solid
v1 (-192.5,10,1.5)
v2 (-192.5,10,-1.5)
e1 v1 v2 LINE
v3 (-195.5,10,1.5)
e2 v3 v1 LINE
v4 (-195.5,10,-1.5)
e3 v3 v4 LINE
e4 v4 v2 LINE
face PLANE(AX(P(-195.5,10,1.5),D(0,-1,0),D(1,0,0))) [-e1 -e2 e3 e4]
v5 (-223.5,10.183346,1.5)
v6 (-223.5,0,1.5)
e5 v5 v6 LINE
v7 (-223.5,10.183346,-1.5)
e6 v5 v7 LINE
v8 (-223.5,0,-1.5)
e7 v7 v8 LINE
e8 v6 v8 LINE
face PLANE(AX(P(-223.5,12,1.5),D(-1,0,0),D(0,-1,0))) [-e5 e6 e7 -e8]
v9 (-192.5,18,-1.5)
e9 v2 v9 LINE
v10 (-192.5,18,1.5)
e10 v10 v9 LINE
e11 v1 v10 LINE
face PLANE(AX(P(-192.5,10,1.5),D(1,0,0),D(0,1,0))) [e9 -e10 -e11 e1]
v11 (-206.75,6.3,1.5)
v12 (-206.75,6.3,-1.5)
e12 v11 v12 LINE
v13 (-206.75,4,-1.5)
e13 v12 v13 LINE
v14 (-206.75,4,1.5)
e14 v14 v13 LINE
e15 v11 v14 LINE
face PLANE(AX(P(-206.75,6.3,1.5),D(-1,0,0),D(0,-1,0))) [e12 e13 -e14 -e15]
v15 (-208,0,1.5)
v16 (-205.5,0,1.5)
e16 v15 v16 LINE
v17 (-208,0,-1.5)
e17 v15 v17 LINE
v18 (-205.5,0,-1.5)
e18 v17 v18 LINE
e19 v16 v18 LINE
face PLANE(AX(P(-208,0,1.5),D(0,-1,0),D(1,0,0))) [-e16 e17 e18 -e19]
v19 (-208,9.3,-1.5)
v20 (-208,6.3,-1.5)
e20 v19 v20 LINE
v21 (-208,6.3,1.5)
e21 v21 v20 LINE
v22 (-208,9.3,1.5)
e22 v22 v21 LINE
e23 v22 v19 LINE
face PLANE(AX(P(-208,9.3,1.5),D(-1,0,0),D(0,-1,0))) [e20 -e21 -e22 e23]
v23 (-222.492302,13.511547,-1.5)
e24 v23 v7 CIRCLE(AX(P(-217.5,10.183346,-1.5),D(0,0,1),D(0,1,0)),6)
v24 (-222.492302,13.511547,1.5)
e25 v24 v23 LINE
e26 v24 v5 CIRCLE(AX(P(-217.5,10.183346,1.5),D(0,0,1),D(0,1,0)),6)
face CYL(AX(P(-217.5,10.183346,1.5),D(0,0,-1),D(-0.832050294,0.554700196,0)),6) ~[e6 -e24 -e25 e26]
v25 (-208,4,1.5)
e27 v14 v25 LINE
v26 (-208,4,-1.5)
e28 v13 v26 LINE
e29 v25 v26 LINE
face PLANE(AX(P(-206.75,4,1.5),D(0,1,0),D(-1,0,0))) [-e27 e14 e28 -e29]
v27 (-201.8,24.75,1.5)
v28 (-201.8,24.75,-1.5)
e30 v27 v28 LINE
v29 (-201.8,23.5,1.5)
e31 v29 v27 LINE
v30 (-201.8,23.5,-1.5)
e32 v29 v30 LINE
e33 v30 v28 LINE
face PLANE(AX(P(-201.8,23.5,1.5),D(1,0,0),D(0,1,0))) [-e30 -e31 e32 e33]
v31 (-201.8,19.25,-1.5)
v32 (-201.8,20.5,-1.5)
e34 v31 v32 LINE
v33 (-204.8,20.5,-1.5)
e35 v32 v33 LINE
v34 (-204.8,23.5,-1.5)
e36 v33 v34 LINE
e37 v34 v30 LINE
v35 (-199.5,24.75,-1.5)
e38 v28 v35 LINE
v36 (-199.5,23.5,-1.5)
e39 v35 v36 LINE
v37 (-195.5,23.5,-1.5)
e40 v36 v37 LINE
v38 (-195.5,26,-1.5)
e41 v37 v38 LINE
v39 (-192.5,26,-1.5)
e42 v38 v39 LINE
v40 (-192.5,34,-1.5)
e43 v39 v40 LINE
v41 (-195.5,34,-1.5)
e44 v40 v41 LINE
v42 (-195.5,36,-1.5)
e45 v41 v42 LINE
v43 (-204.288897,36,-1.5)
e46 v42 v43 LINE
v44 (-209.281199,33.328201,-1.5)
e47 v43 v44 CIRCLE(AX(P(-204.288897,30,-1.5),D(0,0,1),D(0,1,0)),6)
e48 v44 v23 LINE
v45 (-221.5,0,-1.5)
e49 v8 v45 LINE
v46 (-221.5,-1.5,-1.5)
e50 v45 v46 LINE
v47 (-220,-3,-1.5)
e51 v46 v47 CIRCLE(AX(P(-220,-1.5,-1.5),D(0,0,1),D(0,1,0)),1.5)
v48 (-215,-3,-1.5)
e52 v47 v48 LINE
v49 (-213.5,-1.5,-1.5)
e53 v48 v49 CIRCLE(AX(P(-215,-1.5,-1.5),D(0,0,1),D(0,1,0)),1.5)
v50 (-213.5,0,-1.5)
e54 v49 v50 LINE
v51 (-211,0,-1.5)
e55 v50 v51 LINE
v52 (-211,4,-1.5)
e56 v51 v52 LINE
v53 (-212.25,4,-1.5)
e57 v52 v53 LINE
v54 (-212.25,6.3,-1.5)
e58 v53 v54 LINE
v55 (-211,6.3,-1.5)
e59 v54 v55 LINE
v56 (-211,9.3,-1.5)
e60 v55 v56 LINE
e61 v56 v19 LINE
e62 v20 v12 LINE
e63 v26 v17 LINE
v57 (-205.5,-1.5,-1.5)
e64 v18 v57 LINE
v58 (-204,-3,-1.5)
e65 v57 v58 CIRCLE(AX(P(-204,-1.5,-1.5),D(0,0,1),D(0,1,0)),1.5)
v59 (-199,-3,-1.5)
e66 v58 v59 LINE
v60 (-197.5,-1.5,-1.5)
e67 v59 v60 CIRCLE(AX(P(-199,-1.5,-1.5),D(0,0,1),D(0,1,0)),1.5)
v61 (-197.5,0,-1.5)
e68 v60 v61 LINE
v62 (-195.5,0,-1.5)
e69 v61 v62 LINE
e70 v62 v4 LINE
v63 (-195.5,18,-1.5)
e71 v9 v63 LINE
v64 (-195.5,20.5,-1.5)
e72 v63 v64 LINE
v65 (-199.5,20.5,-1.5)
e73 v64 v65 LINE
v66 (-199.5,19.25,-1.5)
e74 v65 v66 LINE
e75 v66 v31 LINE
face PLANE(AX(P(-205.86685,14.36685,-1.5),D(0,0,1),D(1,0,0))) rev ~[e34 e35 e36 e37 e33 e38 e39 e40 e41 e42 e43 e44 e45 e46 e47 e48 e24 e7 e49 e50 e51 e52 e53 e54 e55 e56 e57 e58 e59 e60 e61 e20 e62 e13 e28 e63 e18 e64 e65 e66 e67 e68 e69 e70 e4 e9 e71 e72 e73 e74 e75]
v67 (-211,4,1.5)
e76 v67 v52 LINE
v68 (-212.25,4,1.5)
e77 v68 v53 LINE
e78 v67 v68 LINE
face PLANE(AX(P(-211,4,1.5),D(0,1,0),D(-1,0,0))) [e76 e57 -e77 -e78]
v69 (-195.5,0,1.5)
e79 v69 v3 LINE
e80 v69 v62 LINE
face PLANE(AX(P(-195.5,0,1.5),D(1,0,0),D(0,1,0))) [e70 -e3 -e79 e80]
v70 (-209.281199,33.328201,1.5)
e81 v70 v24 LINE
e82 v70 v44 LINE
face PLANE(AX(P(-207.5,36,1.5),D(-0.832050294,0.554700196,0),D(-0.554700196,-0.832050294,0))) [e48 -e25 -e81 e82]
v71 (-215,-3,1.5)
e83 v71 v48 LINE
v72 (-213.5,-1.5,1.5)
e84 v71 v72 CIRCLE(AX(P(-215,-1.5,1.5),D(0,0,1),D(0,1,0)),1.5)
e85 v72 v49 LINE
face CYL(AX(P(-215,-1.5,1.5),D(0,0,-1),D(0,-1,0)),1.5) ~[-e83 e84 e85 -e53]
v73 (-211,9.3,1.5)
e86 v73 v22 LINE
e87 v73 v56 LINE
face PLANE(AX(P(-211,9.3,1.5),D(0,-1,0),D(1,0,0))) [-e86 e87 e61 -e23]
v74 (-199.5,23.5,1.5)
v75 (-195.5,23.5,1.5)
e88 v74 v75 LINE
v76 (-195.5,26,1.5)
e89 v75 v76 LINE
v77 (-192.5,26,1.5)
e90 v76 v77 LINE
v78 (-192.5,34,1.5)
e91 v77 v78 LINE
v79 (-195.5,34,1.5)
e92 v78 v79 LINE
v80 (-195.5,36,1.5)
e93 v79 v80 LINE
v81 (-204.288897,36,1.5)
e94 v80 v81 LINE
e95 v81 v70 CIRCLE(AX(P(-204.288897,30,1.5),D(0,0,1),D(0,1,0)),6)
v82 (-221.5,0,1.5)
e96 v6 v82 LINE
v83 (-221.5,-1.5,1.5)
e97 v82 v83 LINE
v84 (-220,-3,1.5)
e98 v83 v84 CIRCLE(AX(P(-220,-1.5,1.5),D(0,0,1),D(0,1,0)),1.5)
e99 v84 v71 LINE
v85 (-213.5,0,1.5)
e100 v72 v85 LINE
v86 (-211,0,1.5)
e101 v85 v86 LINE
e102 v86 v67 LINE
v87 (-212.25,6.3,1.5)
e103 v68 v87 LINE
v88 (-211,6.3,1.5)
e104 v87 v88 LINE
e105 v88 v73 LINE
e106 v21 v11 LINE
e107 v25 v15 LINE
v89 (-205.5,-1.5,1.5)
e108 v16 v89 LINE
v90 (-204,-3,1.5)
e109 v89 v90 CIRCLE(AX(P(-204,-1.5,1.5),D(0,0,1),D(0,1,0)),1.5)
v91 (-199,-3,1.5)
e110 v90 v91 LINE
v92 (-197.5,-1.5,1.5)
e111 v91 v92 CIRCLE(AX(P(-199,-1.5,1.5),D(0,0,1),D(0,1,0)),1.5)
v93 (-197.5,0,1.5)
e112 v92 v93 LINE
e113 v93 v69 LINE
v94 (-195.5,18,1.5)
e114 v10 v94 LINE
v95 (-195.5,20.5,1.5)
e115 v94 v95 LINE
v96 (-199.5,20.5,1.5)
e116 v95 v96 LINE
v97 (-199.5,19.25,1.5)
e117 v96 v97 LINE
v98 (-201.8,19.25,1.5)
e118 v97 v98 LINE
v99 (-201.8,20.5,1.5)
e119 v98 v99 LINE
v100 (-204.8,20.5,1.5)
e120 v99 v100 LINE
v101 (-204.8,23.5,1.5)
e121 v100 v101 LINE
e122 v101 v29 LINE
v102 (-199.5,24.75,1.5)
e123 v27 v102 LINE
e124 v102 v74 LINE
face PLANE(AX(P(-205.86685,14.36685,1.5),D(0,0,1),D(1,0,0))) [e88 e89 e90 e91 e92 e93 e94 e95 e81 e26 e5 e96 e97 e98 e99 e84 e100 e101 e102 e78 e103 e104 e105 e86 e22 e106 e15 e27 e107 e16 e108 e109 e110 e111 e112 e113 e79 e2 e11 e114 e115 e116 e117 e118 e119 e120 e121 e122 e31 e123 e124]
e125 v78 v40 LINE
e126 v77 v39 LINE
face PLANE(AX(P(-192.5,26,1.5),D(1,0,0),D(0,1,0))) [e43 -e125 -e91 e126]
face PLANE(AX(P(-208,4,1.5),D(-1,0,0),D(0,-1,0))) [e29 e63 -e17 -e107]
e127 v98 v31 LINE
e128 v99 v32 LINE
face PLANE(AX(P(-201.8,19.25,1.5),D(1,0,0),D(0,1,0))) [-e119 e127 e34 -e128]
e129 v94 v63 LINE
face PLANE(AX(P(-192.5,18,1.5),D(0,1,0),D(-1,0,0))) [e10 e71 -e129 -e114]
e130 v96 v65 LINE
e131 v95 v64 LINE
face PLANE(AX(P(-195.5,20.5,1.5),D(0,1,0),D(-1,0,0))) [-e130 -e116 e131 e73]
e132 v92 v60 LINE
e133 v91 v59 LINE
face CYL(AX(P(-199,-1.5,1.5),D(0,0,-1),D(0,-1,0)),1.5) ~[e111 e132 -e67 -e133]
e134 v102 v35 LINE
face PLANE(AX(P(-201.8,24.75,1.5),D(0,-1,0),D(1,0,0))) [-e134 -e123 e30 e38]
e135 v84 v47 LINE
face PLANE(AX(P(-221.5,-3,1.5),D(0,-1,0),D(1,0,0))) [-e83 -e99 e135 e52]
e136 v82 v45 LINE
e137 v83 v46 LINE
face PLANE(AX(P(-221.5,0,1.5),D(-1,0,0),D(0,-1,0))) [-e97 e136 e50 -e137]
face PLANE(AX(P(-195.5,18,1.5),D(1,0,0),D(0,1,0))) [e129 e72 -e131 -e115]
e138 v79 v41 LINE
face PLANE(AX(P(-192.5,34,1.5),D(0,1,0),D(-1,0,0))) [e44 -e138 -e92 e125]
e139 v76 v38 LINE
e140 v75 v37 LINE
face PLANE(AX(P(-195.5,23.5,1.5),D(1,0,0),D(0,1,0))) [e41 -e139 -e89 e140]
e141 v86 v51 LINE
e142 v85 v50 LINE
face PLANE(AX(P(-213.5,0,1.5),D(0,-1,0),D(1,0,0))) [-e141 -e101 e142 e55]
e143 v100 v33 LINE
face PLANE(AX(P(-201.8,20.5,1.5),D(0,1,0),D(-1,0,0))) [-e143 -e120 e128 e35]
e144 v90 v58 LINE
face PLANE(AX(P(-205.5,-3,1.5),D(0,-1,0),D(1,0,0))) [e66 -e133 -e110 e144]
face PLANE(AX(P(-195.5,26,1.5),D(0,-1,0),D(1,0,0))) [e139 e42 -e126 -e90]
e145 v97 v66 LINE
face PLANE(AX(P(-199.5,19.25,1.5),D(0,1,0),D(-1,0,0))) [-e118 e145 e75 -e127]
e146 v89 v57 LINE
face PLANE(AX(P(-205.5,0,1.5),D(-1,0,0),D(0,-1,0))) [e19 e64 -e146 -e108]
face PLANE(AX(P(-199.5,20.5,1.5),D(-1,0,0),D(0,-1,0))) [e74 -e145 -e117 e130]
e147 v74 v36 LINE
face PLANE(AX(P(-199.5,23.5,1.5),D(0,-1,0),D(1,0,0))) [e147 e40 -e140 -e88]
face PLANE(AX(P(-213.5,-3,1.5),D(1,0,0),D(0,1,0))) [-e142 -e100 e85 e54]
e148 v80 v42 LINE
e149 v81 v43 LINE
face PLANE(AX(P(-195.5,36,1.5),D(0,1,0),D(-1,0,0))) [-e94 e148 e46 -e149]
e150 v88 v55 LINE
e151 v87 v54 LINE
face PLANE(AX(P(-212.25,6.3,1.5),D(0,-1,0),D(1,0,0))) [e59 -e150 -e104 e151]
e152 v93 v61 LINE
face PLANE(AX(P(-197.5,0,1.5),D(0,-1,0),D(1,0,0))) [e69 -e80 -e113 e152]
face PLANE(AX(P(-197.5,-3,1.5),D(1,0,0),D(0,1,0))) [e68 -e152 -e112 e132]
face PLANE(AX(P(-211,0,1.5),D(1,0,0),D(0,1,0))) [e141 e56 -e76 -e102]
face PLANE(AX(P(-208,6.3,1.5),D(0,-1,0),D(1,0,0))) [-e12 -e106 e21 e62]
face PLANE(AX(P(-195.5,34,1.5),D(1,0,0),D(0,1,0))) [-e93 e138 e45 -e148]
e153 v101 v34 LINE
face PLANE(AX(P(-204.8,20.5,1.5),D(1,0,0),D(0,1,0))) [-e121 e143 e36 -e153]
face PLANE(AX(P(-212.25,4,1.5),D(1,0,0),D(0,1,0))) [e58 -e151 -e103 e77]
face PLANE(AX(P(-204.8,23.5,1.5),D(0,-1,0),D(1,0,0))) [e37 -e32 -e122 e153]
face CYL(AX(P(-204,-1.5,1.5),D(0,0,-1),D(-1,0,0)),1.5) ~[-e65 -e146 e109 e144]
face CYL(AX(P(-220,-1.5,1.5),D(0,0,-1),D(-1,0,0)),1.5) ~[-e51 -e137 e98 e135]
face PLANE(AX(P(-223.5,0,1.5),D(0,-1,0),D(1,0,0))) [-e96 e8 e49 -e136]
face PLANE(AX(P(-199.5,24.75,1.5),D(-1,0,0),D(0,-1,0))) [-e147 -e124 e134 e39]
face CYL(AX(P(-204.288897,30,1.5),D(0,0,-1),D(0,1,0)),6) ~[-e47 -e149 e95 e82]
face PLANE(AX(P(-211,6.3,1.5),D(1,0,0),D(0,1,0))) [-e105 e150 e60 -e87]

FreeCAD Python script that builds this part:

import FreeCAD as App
import Part
import Sketcher

V = App.Vector


def edges_at(feature, points):
    """Names of the edges that pass closest to the given points."""
    edges = feature.Shape.Edges
    near = lambda p: min(range(len(edges)), key=lambda i: edges[i].distToShape(Part.Vertex(*p))[0])
    return sorted({f"Edge{near(p) + 1}" for p in points})


def add_polygon(sketch, points):
    """Adds a closed chain of lines whose ends are joined by coincident constraints."""
    first, n = sketch.GeometryCount, len(points)
    for a, b in zip(points, points[1:] + points[:1]):
        sketch.addGeometry(Part.LineSegment(App.Vector(*a, 0), App.Vector(*b, 0)), False)
    for i in range(n):
        sketch.addConstraint(Sketcher.Constraint("Coincident", first + i, 2, first + (i + 1) % n, 1))

doc = App.newDocument("Part")
params = doc.addObject("Spreadsheet::Sheet", "Params")
for row, (alias, value) in enumerate([
    ("sketch1_width", "12 mm"),
    ("sketch1_width2", "3 mm"),
    ("sketch1_width3", "4 mm"),
    ("sketch1_width4", "2 mm"),
    ("sketch1_width5", "8 mm"),
    ("pad1_length", "3 mm"),
    ("fillet_radius", "6 mm"),
    ("fillet2_radius", "1.5 mm"),
], start=1):
    params.set(f"A{row}", alias)
    params.set(f"B{row}", "=" + value)
    params.setAlias(f"B{row}", alias)

body = doc.addObject("PartDesign::Body", "Body")

# Sketch on XY plane
sketch1 = body.newObject("Sketcher::SketchObject", "Sketch")
sketch1.AttachmentSupport = (doc.getObject("XY_Plane"), [""])
sketch1.MapMode = "FlatFace"
sketch1.AttachmentOffset = App.Placement(V(0, 0, 1.5), App.Rotation())
add_polygon(sketch1, [(-207.5, 36), (-195.5, 36), (-195.5, 34), (-192.5, 34), (-192.5, 26), (-195.5, 26), (-195.5, 23.5), (-199.5, 23.5), (-199.5, 24.8), (-201.8, 24.8), (-201.8, 23.5), (-204.8, 23.5), (-204.8, 20.5), (-201.8, 20.5), (-201.8, 19.2), (-199.5, 19.2), (-199.5, 20.5), (-195.5, 20.5), (-195.5, 18), (-192.5, 18), (-192.5, 10), (-195.5, 10), (-195.5, 0), (-197.5, 0), (-197.5, -3), (-205.5, -3), (-205.5, 0), (-208, 0), (-208, 4), (-206.8, 4), (-206.8, 6.3), (-208, 6.3), (-208, 9.3), (-211, 9.3), (-211, 6.3), (-212.2, 6.3), (-212.2, 4), (-211, 4), (-211, 0), (-213.5, 0), (-213.5, -3), (-221.5, -3), (-221.5, 0), (-223.5, 0), (-223.5, 12)])  # lines 0-44
sketch1.addConstraint([
    Sketcher.Constraint("Horizontal", 0),
    Sketcher.Constraint("Vertical", 1),
    Sketcher.Constraint("Horizontal", 2),
    Sketcher.Constraint("Vertical", 3),
    Sketcher.Constraint("Horizontal", 4),
    Sketcher.Constraint("Vertical", 5),
    Sketcher.Constraint("Horizontal", 6),
    Sketcher.Constraint("Vertical", 7),
    Sketcher.Constraint("Horizontal", 8),
    Sketcher.Constraint("Vertical", 9),
    Sketcher.Constraint("Horizontal", 10),
    Sketcher.Constraint("Vertical", 11),
    Sketcher.Constraint("Horizontal", 12),
    Sketcher.Constraint("Vertical", 13),
    Sketcher.Constraint("Horizontal", 14),
    Sketcher.Constraint("Vertical", 15),
    Sketcher.Constraint("Horizontal", 16),
    Sketcher.Constraint("Vertical", 17),
    Sketcher.Constraint("Horizontal", 18),
    Sketcher.Constraint("Vertical", 19),
    Sketcher.Constraint("Horizontal", 20),
    Sketcher.Constraint("Vertical", 21),
    Sketcher.Constraint("Horizontal", 22),
    Sketcher.Constraint("Vertical", 23),
    Sketcher.Constraint("Horizontal", 24),
    Sketcher.Constraint("Vertical", 25),
    Sketcher.Constraint("Horizontal", 26),
    Sketcher.Constraint("Vertical", 27),
    Sketcher.Constraint("Horizontal", 28),
    Sketcher.Constraint("Vertical", 29),
    Sketcher.Constraint("Horizontal", 30),
    Sketcher.Constraint("Vertical", 31),
    Sketcher.Constraint("Horizontal", 32),
    Sketcher.Constraint("Vertical", 33),
    Sketcher.Constraint("Horizontal", 34),
    Sketcher.Constraint("Vertical", 35),
    Sketcher.Constraint("Horizontal", 36),
    Sketcher.Constraint("Vertical", 37),
    Sketcher.Constraint("Horizontal", 38),
    Sketcher.Constraint("Vertical", 39),
    Sketcher.Constraint("Horizontal", 40),
    Sketcher.Constraint("Vertical", 41),
    Sketcher.Constraint("Horizontal", 42),
    Sketcher.Constraint("Vertical", 43),
    Sketcher.Constraint("PointOnObject", 21, 2, -1),
    Sketcher.Constraint("PointOnObject", 25, 2, -1),
    Sketcher.Constraint("PointOnObject", 37, 2, -1),
    Sketcher.Constraint("PointOnObject", 41, 2, -1),
    Sketcher.Constraint("Horizontal", 6, 2, 9, 2),
    Sketcher.Constraint("Horizontal", 12, 2, 15, 2),
    Sketcher.Constraint("Horizontal", 30, 2, 33, 2),
    Sketcher.Constraint("Horizontal", 28, 2, 35, 2),
    Sketcher.Constraint("Horizontal", 24, 2, 39, 2),
    Sketcher.Constraint("Vertical", 1, 2, 4, 2),
    Sketcher.Constraint("Vertical", 9, 2, 12, 2),
    Sketcher.Constraint("Vertical", 7, 2, 14, 2),
    Sketcher.Constraint("Vertical", 5, 2, 16, 2),
    Sketcher.Constraint("Vertical", 3, 2, 18, 2),
    Sketcher.Constraint("Vertical", 17, 2, 20, 2),
    Sketcher.Constraint("Vertical", 27, 2, 30, 2),
    Sketcher.Constraint("Vertical", 33, 2, 36, 2),
    Sketcher.Constraint("Equal", 4, 10),
    Sketcher.Constraint("Equal", 20, 32),
    Sketcher.Constraint("Equal", 30, 34),
    Sketcher.Constraint("Equal", 26, 38),
    Sketcher.Constraint("Equal", 24, 40),
    Sketcher.Constraint("Equal", 22, 42),
    Sketcher.Constraint("Equal", 42, 1),
    Sketcher.Constraint("Equal", 40, 3),
    Sketcher.Constraint("Equal", 38, 5),
    Sketcher.Constraint("Equal", 36, 7),
    Sketcher.Constraint("Equal", 32, 11),
    Sketcher.Constraint("Equal", 9, 13),
    Sketcher.Constraint("Equal", 5, 17),
    Sketcher.Constraint("Equal", 3, 19),
    Sketcher.Constraint("Equal", 11, 23),
    Sketcher.Constraint("Equal", 16, 27),
    Sketcher.Constraint("Equal", 14, 29),
    Sketcher.Constraint("Equal", 25, 31),
    Sketcher.Constraint("Equal", 0, 43),
    Sketcher.Constraint("DistanceX", 0, 1, 0, 2, 12.0),
    Sketcher.Constraint("DistanceX", 2, 1, 2, 2, 3.0),
    Sketcher.Constraint("DistanceX", 6, 2, 6, 1, 4.0),
    Sketcher.Constraint("DistanceX", 22, 2, 22, 1, 2.0),
    Sketcher.Constraint("DistanceX", 24, 2, 24, 1, 8.0),
    Sketcher.Constraint("DistanceY", 21, 2, 21, 1, 10.0),
    Sketcher.Constraint("DistanceX", 8, 2, 8, 1, 2.3),
    Sketcher.Constraint("DistanceX", 26, 2, 26, 1, 2.5),
    Sketcher.Constraint("DistanceX", 26, 2, -1, 1, 208.0),
    Sketcher.Constraint("DistanceX", 28, 1, 28, 2, 1.25),
])
sketch1.setExpression("Constraints[125]", "Params.sketch1_width")
sketch1.setExpression("Constraints[126]", "Params.sketch1_width2")
sketch1.setExpression("Constraints[127]", "Params.sketch1_width3")
sketch1.setExpression("Constraints[128]", "Params.sketch1_width4")
sketch1.setExpression("Constraints[129]", "Params.sketch1_width5")
pad1 = body.newObject("PartDesign::Pad", "Pad")
pad1.Profile = sketch1
pad1.setExpression("Length", "Params.pad1_length")
pad1.Reversed = True
doc.recompute()

fillet = body.newObject("PartDesign::Fillet", "Fillet")
fillet.Base = (pad1, edges_at(pad1, [(-207.5, 36, 0), (-223.5, 12, 0)]))
fillet.setExpression("Radius", "Params.fillet_radius")
doc.recompute()

fillet2 = body.newObject("PartDesign::Fillet", "Fillet001")
fillet2.Base = (fillet, edges_at(fillet, [
    (-221.5, -3, 0),
    (-213.5, -3, 0),
    (-205.5, -3, 0),
    (-197.5, -3, 0),
]))
fillet2.setExpression("Radius", "Params.fillet2_radius")

doc.recompute()
